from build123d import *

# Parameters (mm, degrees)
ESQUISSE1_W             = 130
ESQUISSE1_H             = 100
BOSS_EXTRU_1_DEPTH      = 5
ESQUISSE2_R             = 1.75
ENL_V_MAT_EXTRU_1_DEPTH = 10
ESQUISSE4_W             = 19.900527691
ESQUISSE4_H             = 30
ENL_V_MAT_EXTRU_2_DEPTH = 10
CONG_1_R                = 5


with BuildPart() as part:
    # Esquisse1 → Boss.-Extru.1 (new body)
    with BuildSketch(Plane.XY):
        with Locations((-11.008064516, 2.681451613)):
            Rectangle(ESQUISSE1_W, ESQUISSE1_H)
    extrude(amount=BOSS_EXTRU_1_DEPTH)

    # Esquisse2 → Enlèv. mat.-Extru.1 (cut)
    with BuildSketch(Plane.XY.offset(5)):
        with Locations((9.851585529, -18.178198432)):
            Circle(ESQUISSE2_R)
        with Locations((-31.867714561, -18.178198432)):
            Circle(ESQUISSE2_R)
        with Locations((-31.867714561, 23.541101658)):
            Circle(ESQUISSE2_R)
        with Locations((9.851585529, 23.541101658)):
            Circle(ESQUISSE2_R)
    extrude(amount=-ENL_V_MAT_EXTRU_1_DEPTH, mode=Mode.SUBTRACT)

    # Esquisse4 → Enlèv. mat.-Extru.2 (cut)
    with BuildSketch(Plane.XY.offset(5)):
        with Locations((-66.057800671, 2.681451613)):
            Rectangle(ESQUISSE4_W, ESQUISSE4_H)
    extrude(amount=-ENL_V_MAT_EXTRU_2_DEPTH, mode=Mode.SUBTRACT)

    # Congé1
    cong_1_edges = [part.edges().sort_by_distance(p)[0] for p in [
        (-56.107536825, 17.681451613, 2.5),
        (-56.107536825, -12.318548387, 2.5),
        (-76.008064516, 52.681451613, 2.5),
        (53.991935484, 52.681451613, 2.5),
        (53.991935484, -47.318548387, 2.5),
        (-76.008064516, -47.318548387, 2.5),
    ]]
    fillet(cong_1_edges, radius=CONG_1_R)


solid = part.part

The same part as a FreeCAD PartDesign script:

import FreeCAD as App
import Part
import Sketcher


def edges_at(feature, points):
    """Names of the edges that pass closest to the given points."""
    edges = feature.Shape.Edges
    near = lambda p: min(range(len(edges)), key=lambda i: edges[i].distToShape(Part.Vertex(*p))[0])
    return sorted({f"Edge{near(p) + 1}" for p in points})


def add_polygon(sketch, points):
    """Adds a closed chain of lines whose ends are joined by coincident constraints."""
    first, n = sketch.GeometryCount, len(points)
    for a, b in zip(points, points[1:] + points[:1]):
        sketch.addGeometry(Part.LineSegment(App.Vector(*a, 0), App.Vector(*b, 0)), False)
    for i in range(n):
        sketch.addConstraint(Sketcher.Constraint("Coincident", first + i, 2, first + (i + 1) % n, 1))

doc = App.newDocument("Part")
params = doc.addObject("Spreadsheet::Sheet", "Params")
for row, (alias, value) in enumerate([
    ("sketch1_width", "130 mm"),
    ("sketch1_height", "100 mm"),
    ("pad1_length", "5 mm"),
    ("sketch2_diameter", "3.5 mm"),
    ("pocket1_length", "10 mm"),
    ("sketch3_height", "30 mm"),
    ("pocket2_length", "10 mm"),
    ("fillet_radius", "5 mm"),
], start=1):
    params.set(f"A{row}", alias)
    params.set(f"B{row}", "=" + value)
    params.setAlias(f"B{row}", alias)

body = doc.addObject("PartDesign::Body", "Body")

# Sketch on XY plane
sketch1 = body.newObject("Sketcher::SketchObject", "Sketch")
sketch1.AttachmentSupport = (doc.getObject("XY_Plane"), [""])
sketch1.MapMode = "FlatFace"
add_polygon(sketch1, [(-76.008065, 52.681452), (-76.008065, -47.318548), (53.991935, -47.318548), (53.991935, 52.681452)])  # lines 0-3
sketch1.addConstraint([
    Sketcher.Constraint("Vertical", 0),
    Sketcher.Constraint("Horizontal", 1),
    Sketcher.Constraint("Vertical", 2),
    Sketcher.Constraint("Horizontal", 3),
    Sketcher.Constraint("DistanceX", 1, 1, 1, 2, 130.0),
    Sketcher.Constraint("DistanceY", 0, 2, 0, 1, 100.0),
    Sketcher.Constraint("DistanceY", 0, 2, -1, 1, 47.318548),
    Sketcher.Constraint("DistanceX", 0, 2, -1, 1, 76.008065),
])
sketch1.setExpression("Constraints[8]", "Params.sketch1_width")
sketch1.setExpression("Constraints[9]", "Params.sketch1_height")
pad1 = body.newObject("PartDesign::Pad", "Pad")
pad1.Profile = sketch1
pad1.setExpression("Length", "Params.pad1_length")

# Sketch on XY plane
sketch2 = body.newObject("Sketcher::SketchObject", "Sketch001")
sketch2.AttachmentSupport = (doc.getObject("XY_Plane"), [""])
sketch2.MapMode = "FlatFace"
sketch2.AttachmentOffset = App.Placement(App.Vector(0, 0, 5), App.Rotation())
sketch2.addGeometry([
    Part.Circle(App.Vector(9.851586, -18.178198, 0), App.Vector(0, 0, 1), 1.75),
    Part.Circle(App.Vector(-31.867715, -18.178198, 0), App.Vector(0, 0, 1), 1.75),
    Part.Circle(App.Vector(-31.867715, 23.541102, 0), App.Vector(0, 0, 1), 1.75),
    Part.Circle(App.Vector(9.851586, 23.541102, 0), App.Vector(0, 0, 1), 1.75),
], False)
sketch2.addConstraint([
    Sketcher.Constraint("Equal", 0, 1),
    Sketcher.Constraint("Equal", 1, 2),
    Sketcher.Constraint("Equal", 2, 3),
    Sketcher.Constraint("Horizontal", 0, 3, 1, 3),
    Sketcher.Constraint("Horizontal", 2, 3, 3, 3),
    Sketcher.Constraint("Vertical", 1, 3, 2, 3),
    Sketcher.Constraint("Vertical", 0, 3, 3, 3),
    Sketcher.Constraint("Diameter", 0, 3.5),
    Sketcher.Constraint("DistanceY", 0, 3, -1, 1, 18.178198),
    Sketcher.Constraint("DistanceY", -1, 1, 2, 3, 23.541102),
    Sketcher.Constraint("DistanceX", 1, 3, 0, 3, 41.7193),
    Sketcher.Constraint("DistanceX", -1, 1, 0, 3, 9.851586),
])
sketch2.setExpression("Constraints[7]", "Params.sketch2_diameter")
pocket1 = body.newObject("PartDesign::Pocket", "Pocket")
pocket1.Profile = sketch2
pocket1.setExpression("Length", "Params.pocket1_length")

# Sketch on XY plane
sketch3 = body.newObject("Sketcher::SketchObject", "Sketch002")
sketch3.AttachmentSupport = (doc.getObject("XY_Plane"), [""])
sketch3.MapMode = "FlatFace"
sketch3.AttachmentOffset = App.Placement(App.Vector(0, 0, 5), App.Rotation())
add_polygon(sketch3, [(-76.008065, 17.681452), (-76.008065, -12.318548), (-56.107537, -12.318548), (-56.107537, 17.681452)])  # lines 0-3
sketch3.addConstraint([
    Sketcher.Constraint("Vertical", 0),
    Sketcher.Constraint("Horizontal", 1),
    Sketcher.Constraint("Vertical", 2),
    Sketcher.Constraint("Horizontal", 3),
    Sketcher.Constraint("DistanceY", 0, 2, 0, 1, 30.0),
    Sketcher.Constraint("DistanceX", 1, 1, 1, 2, 19.900528),
    Sketcher.Constraint("DistanceY", 0, 2, -1, 1, 12.318548),
    Sketcher.Constraint("DistanceX", 0, 2, -1, 1, 76.008065),
])
sketch3.setExpression("Constraints[8]", "Params.sketch3_height")
pocket2 = body.newObject("PartDesign::Pocket", "Pocket001")
pocket2.Profile = sketch3
pocket2.setExpression("Length", "Params.pocket2_length")
doc.recompute()

fillet = body.newObject("PartDesign::Fillet", "Fillet")
fillet.Base = (pocket2, edges_at(pocket2, [
    (-56.108, 17.681, 2.5),
    (-56.108, -12.319, 2.5),
    (-76.008, 52.681, 2.5),
    (53.992, 52.681, 2.5),
    (53.992, -47.319, 2.5),
    (-76.008, -47.319, 2.5),
]))
fillet.setExpression("Radius", "Params.fillet_radius")

doc.recompute()
